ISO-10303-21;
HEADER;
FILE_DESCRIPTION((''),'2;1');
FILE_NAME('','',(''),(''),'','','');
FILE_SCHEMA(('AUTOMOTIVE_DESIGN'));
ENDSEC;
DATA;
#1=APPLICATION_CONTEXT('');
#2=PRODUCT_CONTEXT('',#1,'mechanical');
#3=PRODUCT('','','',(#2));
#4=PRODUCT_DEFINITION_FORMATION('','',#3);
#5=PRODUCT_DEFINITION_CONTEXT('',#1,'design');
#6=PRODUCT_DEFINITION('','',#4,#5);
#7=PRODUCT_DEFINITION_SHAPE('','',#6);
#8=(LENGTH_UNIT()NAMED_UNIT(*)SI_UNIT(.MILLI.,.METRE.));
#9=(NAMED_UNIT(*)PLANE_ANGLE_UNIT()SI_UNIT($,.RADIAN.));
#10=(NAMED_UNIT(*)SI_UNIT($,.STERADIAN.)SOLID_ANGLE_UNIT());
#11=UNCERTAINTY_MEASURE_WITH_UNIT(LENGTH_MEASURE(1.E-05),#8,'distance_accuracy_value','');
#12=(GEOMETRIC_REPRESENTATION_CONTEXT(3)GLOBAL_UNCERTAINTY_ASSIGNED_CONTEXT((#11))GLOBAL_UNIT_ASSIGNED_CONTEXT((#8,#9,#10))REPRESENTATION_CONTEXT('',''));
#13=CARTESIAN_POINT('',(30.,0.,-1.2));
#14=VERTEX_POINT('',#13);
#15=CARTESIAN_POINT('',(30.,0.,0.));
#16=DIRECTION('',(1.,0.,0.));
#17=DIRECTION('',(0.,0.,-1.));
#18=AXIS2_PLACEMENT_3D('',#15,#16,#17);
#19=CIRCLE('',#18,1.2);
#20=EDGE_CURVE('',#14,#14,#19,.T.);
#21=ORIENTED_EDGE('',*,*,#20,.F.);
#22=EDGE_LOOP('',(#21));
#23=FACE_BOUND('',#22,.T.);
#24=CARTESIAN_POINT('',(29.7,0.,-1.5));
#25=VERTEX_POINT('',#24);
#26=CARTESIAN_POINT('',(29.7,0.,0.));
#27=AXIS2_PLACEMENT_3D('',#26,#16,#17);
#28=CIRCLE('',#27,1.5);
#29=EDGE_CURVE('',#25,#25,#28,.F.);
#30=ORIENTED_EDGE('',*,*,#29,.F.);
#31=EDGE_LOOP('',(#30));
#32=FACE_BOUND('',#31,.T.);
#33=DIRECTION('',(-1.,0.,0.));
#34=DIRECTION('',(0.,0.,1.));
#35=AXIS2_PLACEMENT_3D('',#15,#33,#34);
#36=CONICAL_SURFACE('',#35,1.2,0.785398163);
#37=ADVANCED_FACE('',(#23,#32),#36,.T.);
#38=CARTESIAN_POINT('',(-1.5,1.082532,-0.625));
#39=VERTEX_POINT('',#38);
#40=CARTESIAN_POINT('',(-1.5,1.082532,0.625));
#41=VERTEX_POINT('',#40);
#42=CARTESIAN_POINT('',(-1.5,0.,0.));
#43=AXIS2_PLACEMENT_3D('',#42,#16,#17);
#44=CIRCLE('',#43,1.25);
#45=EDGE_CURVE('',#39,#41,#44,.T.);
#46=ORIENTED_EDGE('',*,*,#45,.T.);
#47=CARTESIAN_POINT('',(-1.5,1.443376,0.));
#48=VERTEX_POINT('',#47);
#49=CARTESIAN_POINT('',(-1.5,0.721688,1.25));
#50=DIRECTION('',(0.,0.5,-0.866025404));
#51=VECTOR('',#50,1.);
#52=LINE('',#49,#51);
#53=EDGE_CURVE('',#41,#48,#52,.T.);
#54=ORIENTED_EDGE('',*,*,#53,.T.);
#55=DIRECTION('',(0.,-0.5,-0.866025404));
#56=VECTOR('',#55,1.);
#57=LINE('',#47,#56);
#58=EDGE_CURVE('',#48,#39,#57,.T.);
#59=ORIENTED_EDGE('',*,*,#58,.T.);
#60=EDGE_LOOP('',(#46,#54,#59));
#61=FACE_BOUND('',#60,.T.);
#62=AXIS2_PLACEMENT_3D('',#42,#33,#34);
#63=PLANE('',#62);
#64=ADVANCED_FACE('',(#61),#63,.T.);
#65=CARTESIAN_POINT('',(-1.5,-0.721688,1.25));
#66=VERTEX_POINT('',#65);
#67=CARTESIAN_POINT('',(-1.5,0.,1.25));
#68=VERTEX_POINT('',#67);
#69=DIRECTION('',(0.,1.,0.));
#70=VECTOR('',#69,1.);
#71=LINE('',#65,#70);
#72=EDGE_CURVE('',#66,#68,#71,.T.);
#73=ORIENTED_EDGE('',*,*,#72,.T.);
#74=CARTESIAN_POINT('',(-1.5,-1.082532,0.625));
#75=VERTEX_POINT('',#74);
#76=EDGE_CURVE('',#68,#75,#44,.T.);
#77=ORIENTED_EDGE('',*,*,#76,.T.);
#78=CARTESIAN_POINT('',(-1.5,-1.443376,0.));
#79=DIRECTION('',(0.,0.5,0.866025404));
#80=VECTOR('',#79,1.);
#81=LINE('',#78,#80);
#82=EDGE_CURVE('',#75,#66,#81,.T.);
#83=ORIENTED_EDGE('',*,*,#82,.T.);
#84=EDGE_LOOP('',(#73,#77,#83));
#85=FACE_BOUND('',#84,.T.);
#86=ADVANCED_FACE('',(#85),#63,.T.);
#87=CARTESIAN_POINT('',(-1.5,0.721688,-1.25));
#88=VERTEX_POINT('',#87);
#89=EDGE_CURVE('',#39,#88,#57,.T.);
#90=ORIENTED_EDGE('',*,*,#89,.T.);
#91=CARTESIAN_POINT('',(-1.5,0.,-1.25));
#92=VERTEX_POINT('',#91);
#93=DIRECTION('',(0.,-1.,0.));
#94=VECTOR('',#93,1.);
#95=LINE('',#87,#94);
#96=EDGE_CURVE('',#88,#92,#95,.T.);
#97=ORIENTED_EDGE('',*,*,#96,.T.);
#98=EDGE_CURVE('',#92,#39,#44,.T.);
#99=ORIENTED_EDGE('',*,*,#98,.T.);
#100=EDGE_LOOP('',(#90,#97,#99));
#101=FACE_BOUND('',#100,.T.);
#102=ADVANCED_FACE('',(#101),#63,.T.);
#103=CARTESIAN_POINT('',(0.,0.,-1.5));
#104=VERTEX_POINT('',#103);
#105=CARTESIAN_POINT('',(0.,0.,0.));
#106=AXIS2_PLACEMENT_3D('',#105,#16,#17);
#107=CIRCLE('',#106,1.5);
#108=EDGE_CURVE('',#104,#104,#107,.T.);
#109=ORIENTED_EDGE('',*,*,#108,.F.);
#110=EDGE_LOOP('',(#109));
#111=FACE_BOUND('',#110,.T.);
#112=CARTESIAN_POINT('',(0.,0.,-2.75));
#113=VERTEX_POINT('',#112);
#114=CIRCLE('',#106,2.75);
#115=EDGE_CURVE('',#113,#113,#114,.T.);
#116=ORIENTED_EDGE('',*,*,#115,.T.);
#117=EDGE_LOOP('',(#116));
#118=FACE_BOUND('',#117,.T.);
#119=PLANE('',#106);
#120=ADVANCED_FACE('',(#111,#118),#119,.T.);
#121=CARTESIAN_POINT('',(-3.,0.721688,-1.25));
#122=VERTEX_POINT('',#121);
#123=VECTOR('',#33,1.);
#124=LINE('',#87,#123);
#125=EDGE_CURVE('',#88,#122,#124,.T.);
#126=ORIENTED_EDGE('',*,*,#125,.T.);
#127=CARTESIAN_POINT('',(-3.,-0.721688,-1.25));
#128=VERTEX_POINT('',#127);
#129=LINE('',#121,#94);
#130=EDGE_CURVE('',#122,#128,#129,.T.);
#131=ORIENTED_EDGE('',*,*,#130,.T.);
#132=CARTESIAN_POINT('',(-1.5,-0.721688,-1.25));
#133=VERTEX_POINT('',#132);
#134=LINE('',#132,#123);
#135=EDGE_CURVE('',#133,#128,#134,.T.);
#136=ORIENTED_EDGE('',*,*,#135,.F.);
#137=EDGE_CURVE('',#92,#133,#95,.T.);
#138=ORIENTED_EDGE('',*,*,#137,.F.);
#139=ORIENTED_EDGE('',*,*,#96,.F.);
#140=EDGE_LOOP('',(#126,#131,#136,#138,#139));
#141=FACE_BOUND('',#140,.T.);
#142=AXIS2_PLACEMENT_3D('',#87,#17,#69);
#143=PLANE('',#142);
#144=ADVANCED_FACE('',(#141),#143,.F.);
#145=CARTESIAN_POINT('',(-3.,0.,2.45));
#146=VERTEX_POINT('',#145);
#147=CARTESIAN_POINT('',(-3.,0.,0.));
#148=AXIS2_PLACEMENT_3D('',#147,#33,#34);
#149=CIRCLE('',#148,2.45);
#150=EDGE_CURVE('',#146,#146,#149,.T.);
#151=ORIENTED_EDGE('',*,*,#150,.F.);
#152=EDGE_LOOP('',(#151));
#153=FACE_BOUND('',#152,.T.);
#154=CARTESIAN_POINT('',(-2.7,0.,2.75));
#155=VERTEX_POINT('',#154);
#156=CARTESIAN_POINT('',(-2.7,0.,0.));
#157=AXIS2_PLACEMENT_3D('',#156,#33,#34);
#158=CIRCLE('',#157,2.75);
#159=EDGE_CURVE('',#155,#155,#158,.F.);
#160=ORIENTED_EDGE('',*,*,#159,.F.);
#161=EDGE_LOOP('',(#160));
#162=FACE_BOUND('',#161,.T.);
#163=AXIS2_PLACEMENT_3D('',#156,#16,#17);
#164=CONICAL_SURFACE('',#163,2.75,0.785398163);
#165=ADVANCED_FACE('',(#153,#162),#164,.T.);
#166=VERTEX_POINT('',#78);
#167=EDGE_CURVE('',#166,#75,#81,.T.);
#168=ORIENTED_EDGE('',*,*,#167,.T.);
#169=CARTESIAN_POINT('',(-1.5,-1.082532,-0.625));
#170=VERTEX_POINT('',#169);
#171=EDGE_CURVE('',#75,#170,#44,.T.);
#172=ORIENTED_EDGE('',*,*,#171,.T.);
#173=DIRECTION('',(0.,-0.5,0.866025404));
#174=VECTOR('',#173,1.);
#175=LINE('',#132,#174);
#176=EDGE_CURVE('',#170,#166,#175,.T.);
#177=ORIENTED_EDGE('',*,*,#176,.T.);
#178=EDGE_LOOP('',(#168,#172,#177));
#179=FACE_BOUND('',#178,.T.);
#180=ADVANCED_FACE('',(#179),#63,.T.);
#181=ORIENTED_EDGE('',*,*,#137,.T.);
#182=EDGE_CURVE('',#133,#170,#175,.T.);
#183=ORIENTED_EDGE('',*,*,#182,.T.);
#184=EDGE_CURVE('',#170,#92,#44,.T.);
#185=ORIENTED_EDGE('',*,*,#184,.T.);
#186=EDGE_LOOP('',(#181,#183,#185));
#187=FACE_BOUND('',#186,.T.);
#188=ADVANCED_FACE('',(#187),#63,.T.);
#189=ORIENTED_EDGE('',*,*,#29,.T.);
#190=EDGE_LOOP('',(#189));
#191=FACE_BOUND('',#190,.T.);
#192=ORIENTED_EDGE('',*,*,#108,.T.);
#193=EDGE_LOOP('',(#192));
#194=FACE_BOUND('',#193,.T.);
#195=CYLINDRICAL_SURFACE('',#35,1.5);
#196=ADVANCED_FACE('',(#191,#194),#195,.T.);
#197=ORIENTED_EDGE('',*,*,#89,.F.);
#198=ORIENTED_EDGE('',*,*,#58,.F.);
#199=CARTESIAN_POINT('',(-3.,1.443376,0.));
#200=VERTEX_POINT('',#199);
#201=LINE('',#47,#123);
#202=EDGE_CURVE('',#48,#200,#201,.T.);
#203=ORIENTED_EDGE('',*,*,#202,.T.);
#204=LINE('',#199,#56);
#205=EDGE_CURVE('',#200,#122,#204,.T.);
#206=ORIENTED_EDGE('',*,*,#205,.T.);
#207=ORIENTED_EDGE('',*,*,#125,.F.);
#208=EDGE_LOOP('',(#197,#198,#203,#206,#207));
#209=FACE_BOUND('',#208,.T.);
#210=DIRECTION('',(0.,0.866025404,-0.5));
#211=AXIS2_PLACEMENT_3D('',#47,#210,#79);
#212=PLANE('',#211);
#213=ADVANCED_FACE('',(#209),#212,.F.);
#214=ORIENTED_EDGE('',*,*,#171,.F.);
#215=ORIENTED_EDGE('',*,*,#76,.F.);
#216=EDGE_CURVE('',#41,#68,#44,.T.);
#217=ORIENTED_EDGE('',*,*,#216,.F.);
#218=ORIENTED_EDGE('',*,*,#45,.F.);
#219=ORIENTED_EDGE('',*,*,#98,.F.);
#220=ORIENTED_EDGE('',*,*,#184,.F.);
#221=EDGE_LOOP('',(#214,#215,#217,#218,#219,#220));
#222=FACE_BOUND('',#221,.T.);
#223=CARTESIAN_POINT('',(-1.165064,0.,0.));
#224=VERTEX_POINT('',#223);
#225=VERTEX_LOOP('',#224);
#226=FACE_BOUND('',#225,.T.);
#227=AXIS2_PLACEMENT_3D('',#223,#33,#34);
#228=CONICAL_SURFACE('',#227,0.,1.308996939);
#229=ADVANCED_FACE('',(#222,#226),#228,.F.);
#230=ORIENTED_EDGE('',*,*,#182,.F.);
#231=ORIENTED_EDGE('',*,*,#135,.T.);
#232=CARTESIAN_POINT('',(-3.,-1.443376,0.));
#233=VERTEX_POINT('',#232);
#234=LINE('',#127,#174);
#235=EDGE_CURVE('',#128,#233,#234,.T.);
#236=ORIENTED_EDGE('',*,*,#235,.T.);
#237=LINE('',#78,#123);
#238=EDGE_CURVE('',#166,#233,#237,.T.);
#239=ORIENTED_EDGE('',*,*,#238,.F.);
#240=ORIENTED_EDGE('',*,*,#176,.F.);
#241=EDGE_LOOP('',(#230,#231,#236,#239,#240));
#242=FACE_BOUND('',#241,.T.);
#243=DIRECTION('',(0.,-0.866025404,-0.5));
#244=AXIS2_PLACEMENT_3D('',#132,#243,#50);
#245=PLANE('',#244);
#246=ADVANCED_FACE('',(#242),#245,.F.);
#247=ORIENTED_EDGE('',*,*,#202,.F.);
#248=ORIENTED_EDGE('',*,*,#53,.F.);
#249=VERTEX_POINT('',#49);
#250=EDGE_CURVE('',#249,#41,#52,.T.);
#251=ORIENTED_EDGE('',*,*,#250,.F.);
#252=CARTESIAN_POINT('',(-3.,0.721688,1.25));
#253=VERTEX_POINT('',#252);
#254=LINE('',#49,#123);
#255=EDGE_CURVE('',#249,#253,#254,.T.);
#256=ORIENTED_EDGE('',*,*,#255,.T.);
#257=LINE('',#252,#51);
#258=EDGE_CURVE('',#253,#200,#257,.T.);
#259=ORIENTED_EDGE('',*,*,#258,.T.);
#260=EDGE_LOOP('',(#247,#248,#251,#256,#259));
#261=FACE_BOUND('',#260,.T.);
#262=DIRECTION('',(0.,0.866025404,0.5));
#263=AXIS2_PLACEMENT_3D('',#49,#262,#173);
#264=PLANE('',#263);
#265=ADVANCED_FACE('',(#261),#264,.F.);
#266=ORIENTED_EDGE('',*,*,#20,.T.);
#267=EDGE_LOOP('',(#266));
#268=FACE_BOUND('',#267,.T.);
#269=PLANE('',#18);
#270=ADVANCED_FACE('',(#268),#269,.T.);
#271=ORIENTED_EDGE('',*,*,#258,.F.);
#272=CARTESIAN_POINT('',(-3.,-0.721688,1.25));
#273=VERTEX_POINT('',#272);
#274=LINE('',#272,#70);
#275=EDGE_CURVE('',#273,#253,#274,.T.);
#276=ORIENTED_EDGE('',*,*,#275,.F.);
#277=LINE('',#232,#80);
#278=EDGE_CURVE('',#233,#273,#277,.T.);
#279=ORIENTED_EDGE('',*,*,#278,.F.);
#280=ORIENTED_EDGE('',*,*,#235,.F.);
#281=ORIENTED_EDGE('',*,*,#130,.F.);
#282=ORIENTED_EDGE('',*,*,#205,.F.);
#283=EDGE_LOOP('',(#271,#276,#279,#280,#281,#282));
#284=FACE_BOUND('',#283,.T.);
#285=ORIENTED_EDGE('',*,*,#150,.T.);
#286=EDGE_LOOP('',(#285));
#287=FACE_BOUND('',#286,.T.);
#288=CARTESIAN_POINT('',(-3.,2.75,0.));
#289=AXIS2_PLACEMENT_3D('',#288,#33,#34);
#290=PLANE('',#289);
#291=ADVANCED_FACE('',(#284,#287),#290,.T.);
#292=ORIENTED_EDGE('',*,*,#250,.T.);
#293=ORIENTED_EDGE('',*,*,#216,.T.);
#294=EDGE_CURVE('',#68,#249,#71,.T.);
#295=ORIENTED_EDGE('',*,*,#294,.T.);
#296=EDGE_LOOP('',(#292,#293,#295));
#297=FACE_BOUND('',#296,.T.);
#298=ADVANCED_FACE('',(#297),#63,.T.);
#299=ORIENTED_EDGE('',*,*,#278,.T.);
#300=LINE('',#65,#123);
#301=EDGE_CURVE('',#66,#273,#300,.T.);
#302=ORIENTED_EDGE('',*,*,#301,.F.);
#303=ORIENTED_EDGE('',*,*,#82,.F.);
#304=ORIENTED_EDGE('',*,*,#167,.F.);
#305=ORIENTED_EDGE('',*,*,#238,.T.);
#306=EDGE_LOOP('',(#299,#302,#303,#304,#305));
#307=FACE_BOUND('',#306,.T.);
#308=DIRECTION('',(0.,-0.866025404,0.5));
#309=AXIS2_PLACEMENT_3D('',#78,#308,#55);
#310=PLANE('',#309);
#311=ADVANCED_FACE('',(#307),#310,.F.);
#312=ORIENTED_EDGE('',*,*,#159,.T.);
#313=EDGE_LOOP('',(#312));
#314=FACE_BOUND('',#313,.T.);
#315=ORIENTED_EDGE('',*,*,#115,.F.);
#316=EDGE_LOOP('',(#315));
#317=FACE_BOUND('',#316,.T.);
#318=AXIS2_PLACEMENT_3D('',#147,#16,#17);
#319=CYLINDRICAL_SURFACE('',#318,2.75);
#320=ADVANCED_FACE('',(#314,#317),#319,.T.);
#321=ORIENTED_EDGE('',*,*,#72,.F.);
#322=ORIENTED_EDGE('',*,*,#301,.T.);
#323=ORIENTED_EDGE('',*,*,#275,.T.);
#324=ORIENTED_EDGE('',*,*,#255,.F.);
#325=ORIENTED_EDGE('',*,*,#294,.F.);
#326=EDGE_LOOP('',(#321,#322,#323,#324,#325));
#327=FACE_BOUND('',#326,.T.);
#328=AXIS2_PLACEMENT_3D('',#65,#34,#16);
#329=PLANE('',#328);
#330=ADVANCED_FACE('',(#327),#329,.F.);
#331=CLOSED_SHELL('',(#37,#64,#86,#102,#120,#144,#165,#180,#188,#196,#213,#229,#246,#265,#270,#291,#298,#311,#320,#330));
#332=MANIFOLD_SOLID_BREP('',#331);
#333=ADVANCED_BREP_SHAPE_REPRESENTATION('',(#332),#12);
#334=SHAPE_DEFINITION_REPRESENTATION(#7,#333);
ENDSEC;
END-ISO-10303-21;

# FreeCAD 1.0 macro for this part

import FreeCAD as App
import Part
import Sketcher

V = App.Vector
Q = App.Units.Quantity


def edges_at(feature, points):
    """Names of the edges that pass closest to the given points."""
    edges = feature.Shape.Edges
    near = lambda p: min(range(len(edges)), key=lambda i: edges[i].distToShape(Part.Vertex(*p))[0])
    return sorted({f"Edge{near(p) + 1}" for p in points})

doc = App.newDocument("Part")
body = doc.addObject("PartDesign::Body", "Body")

sketch1 = body.newObject("Sketcher::SketchObject", "Sketch")
sketch1.AttachmentSupport = (doc.getObject("XY_Plane"), [""])
sketch1.MapMode = "FlatFace"
sketch1.addGeometry([
    Part.LineSegment(V(-3, 2.75, 0), V(-3, 0, 0)),
    Part.LineSegment(V(-3, 0, 0), V(0, 0, 0)),
    Part.LineSegment(V(0, 0, 0), V(0, 2.75, 0)),
    Part.LineSegment(V(0, 2.75, 0), V(-3, 2.75, 0)),
], False)
sketch1.addConstraint([
    Sketcher.Constraint("Coincident", 0, 2, 1, 1),
    Sketcher.Constraint("Coincident", 1, 2, 2, 1),
    Sketcher.Constraint("Coincident", 2, 2, 3, 1),
    Sketcher.Constraint("Coincident", 3, 2, 0, 1),
    Sketcher.Constraint("Vertical", 0),
    Sketcher.Constraint("Horizontal", 1),
    Sketcher.Constraint("Vertical", 2),
    Sketcher.Constraint("Horizontal", 3),
    Sketcher.Constraint("Coincident", 1, 2, -1, 1),
    Sketcher.Constraint("DistanceX", 1, 1, 1, 2, Q("3 mm")),
    Sketcher.Constraint("DistanceY", 0, 2, 0, 1, Q("2.75 mm")),
])
revolution = body.newObject("PartDesign::Revolution", "Revolution")
revolution.Profile = sketch1
revolution.ReferenceAxis = (sketch1, ["H_Axis"])
revolution.Angle = 360

sketch2 = body.newObject("Sketcher::SketchObject", "Sketch001")
sketch2.AttachmentSupport = (doc.getObject("YZ_Plane"), [""])
sketch2.MapMode = "FlatFace"
sketch2.addGeometry(Part.Circle(V(0, 0, 0), V(0, 0, 1), 1.5), False)
sketch2.addConstraint([
    Sketcher.Constraint("Coincident", 0, 3, -1, 1),
    Sketcher.Constraint("Diameter", 0, Q("3 mm")),
])
pad1 = body.newObject("PartDesign::Pad", "Pad")
pad1.Profile = sketch2
pad1.Length = 30

sketch3 = body.newObject("Sketcher::SketchObject", "Sketch002")
sketch3.AttachmentSupport = (doc.getObject("YZ_Plane"), [""])
sketch3.MapMode = "FlatFace"
sketch3.AttachmentOffset = App.Placement(V(0, 0, -3), App.Rotation())
sketch3.addGeometry([
    Part.LineSegment(V(-0.721688, 1.25, 0), V(0.721688, 1.25, 0)),
    Part.LineSegment(V(0.721688, 1.25, 0), V(1.443376, 0, 0)),
    Part.LineSegment(V(1.443376, 0, 0), V(0.721688, -1.25, 0)),
    Part.LineSegment(V(0.721688, -1.25, 0), V(-0.721688, -1.25, 0)),
    Part.LineSegment(V(-0.721688, -1.25, 0), V(-1.443376, 0, 0)),
    Part.LineSegment(V(-1.443376, 0, 0), V(-0.721688, 1.25, 0)),
], False)
sketch3.addConstraint([
    Sketcher.Constraint("Coincident", 0, 2, 1, 1),
    Sketcher.Constraint("Coincident", 1, 2, 2, 1),
    Sketcher.Constraint("Coincident", 2, 2, 3, 1),
    Sketcher.Constraint("Coincident", 3, 2, 4, 1),
    Sketcher.Constraint("Coincident", 4, 2, 5, 1),
    Sketcher.Constraint("Coincident", 5, 2, 0, 1),
    Sketcher.Constraint("Horizontal", 0),
    Sketcher.Constraint("Horizontal", 3),
    Sketcher.Constraint("Symmetric", 0, 2, 3, 2, -1, 1),
    Sketcher.Constraint("Symmetric", 1, 2, 4, 2, -1, 1),
    Sketcher.Constraint("PointOnObject", 1, 2, -1),
    Sketcher.Constraint("Parallel", 2, 5),
    Sketcher.Constraint("Vertical", 0, 2, 2, 2),
    Sketcher.Constraint("Angle", 1, Q("-60 deg")),
    Sketcher.Constraint("DistanceY", 2, 2, 0, 2, Q("2.5 mm")),
    Sketcher.Constraint("DistanceX", 0, 1, 0, 2, Q("1.443376 mm")),
])
pocket1 = body.newObject("PartDesign::Pocket", "Pocket")
pocket1.Profile = sketch3
pocket1.Length = 1.5
pocket1.Reversed = True

sketch4 = body.newObject("Sketcher::SketchObject", "Sketch003")
sketch4.AttachmentSupport = (doc.getObject("XY_Plane"), [""])
sketch4.MapMode = "FlatFace"
sketch4.addGeometry([
    Part.LineSegment(V(-1.5, 1.25, 0), V(-1.5, 0, 0)),
    Part.LineSegment(V(-1.5, 0, 0), V(-1.165064, 0, 0)),
    Part.LineSegment(V(-1.165064, 0, 0), V(-1.5, 1.25, 0)),
], False)
sketch4.addConstraint([
    Sketcher.Constraint("Coincident", 0, 2, 1, 1),
    Sketcher.Constraint("Coincident", 1, 2, 2, 1),
    Sketcher.Constraint("Coincident", 2, 2, 0, 1),
    Sketcher.Constraint("Vertical", 0),
    Sketcher.Constraint("Horizontal", 1),
    Sketcher.Constraint("PointOnObject", 0, 2, -1),
    Sketcher.Constraint("Angle", 2, Q("105 deg")),
    Sketcher.Constraint("DistanceY", 0, 2, 0, 1, Q("1.25 mm")),
    Sketcher.Constraint("DistanceX", 0, 2, -1, 1, Q("1.5 mm")),
])
groove = body.newObject("PartDesign::Groove", "Groove")
groove.Profile = sketch4
groove.ReferenceAxis = (sketch4, ["H_Axis"])
groove.Angle = 360
doc.recompute()

chamfer = body.newObject("PartDesign::Chamfer", "Chamfer")
chamfer.Base = (groove, edges_at(groove, [(-3, 0, 2.75), (30, 0, 1.5)]))
chamfer.Size = 0.3

doc.recompute()
